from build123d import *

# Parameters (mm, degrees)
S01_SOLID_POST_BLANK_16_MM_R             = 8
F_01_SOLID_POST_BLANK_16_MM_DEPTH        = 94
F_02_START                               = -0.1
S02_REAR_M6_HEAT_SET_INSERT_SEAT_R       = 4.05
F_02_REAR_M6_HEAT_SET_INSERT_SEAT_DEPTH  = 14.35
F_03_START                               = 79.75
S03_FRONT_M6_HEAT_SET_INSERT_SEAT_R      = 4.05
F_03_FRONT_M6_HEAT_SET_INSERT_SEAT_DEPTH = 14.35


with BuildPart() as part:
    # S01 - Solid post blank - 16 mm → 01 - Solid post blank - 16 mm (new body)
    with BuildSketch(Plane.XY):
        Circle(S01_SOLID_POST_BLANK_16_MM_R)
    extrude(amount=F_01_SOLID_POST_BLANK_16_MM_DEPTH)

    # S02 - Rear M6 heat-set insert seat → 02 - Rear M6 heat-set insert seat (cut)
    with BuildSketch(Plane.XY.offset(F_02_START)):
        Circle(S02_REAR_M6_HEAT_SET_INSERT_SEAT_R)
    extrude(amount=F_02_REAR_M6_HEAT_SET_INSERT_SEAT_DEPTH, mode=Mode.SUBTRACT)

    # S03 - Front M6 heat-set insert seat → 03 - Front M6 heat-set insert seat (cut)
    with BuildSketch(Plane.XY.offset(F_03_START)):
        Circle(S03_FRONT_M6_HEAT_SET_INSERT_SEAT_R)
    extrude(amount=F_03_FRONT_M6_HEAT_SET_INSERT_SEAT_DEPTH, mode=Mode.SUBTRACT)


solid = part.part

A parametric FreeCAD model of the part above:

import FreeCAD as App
import Part
import Sketcher
Q = App.Units.Quantity

doc = App.newDocument("Part")
body = doc.addObject("PartDesign::Body", "Body")

# Sketch on XY plane
sketch1 = doc.addObject("Sketcher::SketchObject", "Sketch")
body.addObject(sketch1)
sketch1.AttachmentSupport = (doc.XY_Plane, [""])
sketch1.MapMode = "FlatFace"
sketch1.addGeometry(Part.Circle(App.Vector(0, 0, 0), App.Vector(0, 0, 1), 8), False)
sketch1.addConstraint([
    Sketcher.Constraint("Coincident", 0, 3, -1, 1),
    Sketcher.Constraint("Diameter", 0, Q("16 mm")),
])
pad1 = doc.addObject("PartDesign::Pad", "Pad")
body.addObject(pad1)
pad1.Profile = sketch1
pad1.Length = 94

# Sketch on XY plane
sketch2 = doc.addObject("Sketcher::SketchObject", "Sketch001")
body.addObject(sketch2)
sketch2.AttachmentSupport = (doc.XY_Plane, [""])
sketch2.MapMode = "FlatFace"
sketch2.AttachmentOffset = App.Placement(App.Vector(0, 0, -0.1), App.Rotation())
sketch2.addGeometry(Part.Circle(App.Vector(0, 0, 0), App.Vector(0, 0, 1), 4), False)
sketch2.addConstraint([
    Sketcher.Constraint("Coincident", 0, 3, -1, 1),
    Sketcher.Constraint("Diameter", 0, Q("8.1 mm")),
])
pocket1 = doc.addObject("PartDesign::Pocket", "Pocket")
body.addObject(pocket1)
pocket1.Profile = sketch2
pocket1.Length = 14.35
pocket1.Reversed = True

# Sketch on XY plane
sketch3 = doc.addObject("Sketcher::SketchObject", "Sketch002")
body.addObject(sketch3)
sketch3.AttachmentSupport = (doc.XY_Plane, [""])
sketch3.MapMode = "FlatFace"
sketch3.AttachmentOffset = App.Placement(App.Vector(0, 0, 79.75), App.Rotation())
sketch3.addGeometry(Part.Circle(App.Vector(0, 0, 0), App.Vector(0, 0, 1), 4), False)
sketch3.addConstraint([
    Sketcher.Constraint("Coincident", 0, 3, -1, 1),
    Sketcher.Constraint("Diameter", 0, Q("8.1 mm")),
])
pocket2 = doc.addObject("PartDesign::Pocket", "Pocket001")
body.addObject(pocket2)
pocket2.Profile = sketch3
pocket2.Length = 14.35
pocket2.Reversed = True

doc.recompute()
